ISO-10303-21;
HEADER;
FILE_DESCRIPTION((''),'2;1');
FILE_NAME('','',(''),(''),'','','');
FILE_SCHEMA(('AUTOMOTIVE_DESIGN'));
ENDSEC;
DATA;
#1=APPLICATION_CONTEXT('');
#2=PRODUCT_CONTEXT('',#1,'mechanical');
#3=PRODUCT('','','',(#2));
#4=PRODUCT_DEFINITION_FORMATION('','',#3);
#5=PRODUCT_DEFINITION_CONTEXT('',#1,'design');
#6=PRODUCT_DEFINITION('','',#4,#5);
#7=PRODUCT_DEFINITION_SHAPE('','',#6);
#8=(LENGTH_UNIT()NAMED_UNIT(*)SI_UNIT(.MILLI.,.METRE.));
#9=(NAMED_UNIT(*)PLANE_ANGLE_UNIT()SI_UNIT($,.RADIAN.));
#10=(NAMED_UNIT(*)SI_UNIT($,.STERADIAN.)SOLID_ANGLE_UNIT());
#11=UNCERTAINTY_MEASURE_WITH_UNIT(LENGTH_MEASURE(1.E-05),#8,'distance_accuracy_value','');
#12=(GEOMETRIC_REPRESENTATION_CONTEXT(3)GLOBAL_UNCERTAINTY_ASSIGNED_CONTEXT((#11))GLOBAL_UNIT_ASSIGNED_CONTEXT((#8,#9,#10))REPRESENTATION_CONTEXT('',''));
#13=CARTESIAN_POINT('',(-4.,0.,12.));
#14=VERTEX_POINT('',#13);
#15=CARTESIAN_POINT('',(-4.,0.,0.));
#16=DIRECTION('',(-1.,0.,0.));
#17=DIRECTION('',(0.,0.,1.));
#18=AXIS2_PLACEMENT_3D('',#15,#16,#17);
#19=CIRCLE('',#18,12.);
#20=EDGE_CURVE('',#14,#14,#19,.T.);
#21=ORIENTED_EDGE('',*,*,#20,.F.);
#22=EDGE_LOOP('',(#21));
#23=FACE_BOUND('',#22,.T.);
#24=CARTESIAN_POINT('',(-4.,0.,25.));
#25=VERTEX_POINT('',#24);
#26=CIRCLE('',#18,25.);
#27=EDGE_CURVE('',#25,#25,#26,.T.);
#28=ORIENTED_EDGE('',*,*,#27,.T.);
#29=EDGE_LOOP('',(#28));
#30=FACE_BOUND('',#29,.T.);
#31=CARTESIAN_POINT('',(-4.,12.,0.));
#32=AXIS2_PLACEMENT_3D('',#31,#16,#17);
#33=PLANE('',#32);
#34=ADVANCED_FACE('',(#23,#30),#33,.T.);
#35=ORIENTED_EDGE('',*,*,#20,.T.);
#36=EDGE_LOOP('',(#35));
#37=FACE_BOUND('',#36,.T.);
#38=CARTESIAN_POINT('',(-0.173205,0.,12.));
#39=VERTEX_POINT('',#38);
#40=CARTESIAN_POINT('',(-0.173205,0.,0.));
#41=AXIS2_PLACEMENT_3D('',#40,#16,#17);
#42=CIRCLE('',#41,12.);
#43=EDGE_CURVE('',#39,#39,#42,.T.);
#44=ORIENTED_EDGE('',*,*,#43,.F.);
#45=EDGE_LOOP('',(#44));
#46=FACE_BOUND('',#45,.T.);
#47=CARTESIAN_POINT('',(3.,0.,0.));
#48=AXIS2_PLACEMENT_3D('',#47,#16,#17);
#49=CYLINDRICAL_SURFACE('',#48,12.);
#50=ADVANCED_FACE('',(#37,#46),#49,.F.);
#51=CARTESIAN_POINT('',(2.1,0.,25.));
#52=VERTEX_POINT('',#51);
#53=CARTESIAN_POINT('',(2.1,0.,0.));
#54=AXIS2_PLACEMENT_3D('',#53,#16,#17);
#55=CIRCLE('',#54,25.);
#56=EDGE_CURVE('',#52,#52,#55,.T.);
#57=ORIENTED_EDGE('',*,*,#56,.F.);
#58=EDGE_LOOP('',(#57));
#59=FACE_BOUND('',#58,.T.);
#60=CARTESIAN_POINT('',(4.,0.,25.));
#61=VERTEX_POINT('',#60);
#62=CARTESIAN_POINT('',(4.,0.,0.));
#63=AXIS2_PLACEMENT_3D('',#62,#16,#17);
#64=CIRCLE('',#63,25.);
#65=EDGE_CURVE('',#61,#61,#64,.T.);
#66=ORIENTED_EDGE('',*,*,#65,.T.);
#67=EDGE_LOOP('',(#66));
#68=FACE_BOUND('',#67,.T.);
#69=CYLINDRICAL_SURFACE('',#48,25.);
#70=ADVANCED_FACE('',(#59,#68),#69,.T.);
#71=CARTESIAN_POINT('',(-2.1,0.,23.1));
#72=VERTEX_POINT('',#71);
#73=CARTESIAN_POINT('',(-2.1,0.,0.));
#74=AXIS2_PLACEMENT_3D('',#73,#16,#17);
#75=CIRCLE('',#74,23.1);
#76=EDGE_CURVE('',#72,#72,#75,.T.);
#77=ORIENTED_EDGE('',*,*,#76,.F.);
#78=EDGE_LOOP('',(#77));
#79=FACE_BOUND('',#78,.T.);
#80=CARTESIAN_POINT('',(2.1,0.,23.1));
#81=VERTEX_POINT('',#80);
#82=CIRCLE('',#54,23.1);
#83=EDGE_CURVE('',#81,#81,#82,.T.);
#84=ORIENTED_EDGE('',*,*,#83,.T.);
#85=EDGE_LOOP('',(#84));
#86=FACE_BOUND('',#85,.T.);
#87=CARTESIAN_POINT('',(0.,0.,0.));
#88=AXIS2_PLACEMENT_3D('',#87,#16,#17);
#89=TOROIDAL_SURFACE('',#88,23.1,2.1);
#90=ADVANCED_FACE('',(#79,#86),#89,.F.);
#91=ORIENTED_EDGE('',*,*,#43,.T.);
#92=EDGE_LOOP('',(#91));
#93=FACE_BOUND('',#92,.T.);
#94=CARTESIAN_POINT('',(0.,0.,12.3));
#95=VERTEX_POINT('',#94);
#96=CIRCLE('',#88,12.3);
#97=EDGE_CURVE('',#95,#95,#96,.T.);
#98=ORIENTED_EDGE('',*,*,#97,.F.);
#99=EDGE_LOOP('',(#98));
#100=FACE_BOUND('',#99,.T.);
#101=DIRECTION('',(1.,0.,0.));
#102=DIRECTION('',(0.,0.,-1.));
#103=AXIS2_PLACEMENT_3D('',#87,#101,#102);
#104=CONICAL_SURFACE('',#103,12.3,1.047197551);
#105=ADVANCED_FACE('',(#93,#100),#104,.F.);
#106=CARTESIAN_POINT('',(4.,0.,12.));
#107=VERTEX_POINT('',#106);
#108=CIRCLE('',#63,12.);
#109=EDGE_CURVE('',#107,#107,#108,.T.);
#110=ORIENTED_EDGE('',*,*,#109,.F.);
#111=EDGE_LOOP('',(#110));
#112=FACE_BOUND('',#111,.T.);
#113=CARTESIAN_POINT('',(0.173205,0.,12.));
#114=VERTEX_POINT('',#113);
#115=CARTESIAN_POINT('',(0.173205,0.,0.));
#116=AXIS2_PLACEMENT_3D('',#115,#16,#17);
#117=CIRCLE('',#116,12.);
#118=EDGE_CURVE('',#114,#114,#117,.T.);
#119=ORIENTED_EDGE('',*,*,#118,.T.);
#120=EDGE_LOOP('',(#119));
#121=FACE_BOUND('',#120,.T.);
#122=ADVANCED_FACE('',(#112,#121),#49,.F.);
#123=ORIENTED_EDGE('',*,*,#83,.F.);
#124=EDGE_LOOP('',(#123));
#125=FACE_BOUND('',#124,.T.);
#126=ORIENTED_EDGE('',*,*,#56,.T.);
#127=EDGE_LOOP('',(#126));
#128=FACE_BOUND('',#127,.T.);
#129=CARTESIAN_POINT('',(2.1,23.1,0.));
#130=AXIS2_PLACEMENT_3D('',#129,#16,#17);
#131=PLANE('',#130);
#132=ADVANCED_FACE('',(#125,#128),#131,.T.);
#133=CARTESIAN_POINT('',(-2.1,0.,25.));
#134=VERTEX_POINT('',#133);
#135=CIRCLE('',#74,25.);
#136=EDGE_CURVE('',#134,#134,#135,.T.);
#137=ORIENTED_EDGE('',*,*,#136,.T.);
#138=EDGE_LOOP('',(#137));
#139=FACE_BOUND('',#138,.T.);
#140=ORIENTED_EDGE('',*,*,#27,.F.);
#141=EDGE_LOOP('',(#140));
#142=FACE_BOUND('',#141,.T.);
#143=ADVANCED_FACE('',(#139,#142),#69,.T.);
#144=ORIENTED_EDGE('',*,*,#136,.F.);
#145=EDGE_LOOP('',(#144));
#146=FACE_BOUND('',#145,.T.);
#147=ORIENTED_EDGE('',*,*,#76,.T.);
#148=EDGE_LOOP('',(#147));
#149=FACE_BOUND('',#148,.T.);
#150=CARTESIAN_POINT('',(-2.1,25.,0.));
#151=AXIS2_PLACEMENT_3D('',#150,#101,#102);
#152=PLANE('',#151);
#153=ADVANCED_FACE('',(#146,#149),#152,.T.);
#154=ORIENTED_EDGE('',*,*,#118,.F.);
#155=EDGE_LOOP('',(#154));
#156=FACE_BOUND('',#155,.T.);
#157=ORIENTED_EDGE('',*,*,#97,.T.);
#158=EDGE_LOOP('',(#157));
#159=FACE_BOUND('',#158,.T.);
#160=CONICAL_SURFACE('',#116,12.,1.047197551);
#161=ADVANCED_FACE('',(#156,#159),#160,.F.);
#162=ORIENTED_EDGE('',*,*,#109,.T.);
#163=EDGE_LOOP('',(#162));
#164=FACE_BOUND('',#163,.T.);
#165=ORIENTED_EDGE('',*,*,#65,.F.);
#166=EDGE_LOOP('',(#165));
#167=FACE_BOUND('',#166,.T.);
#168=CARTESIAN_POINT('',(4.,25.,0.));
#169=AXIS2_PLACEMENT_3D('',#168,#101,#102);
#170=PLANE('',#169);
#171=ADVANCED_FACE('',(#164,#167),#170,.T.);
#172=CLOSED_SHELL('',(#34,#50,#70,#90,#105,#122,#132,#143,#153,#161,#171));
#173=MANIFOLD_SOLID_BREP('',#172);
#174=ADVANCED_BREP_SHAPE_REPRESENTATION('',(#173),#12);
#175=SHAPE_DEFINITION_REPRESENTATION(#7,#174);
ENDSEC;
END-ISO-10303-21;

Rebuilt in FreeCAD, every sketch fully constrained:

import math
import FreeCAD as App
import Part
import Sketcher
Q = App.Units.Quantity

doc = App.newDocument("Part")
params = doc.addObject("Spreadsheet::Sheet", "Params")
for row, (alias, value) in enumerate([
    ("sketch1_radius", "2.1 mm"),
    ("sketch1_height", "13 mm"),
    ("sketch1_width", "1.9 mm"),
    ("revolution_angle", "360 deg"),
], start=1):
    params.set(f"A{row}", alias)
    params.set(f"B{row}", "=" + value)
    params.setAlias(f"B{row}", alias)

body = doc.addObject("PartDesign::Body", "Body")

sketch1 = body.newObject("Sketcher::SketchObject", "Sketch")
sketch1.AttachmentSupport = (doc.getObject("XY_Plane"), [""])
sketch1.MapMode = "FlatFace"
sketch1.addGeometry([
    Part.LineSegment(App.Vector(-4, 25, 0), App.Vector(-2.1, 25, 0)),
    Part.LineSegment(App.Vector(-2.1, 25, 0), App.Vector(-2.1, 23.1, 0)),
    Part.ArcOfCircle(Part.Circle(App.Vector(0, 23.1, 0), App.Vector(0, 0, 1), 2.1), math.radians(180), math.radians(360)),
    Part.LineSegment(App.Vector(2.1, 23.1, 0), App.Vector(2.1, 25, 0)),
    Part.LineSegment(App.Vector(2.1, 25, 0), App.Vector(4, 25, 0)),
    Part.LineSegment(App.Vector(4, 25, 0), App.Vector(4, 12, 0)),
    Part.LineSegment(App.Vector(4, 12, 0), App.Vector(0.17, 12, 0)),
    Part.LineSegment(App.Vector(0.17, 12, 0), App.Vector(0, 12.3, 0)),
    Part.LineSegment(App.Vector(0, 12.3, 0), App.Vector(-0.17, 12, 0)),
    Part.LineSegment(App.Vector(-0.17, 12, 0), App.Vector(-4, 12, 0)),
    Part.LineSegment(App.Vector(-4, 12, 0), App.Vector(-4, 25, 0)),
], False)
sketch1.addConstraint([
    Sketcher.Constraint("Coincident", 0, 2, 1, 1),
    Sketcher.Constraint("Tangent", 1, 2, 2, 1),
    Sketcher.Constraint("Tangent", 2, 2, 3, 1),
    Sketcher.Constraint("Coincident", 3, 2, 4, 1),
    Sketcher.Constraint("Coincident", 4, 2, 5, 1),
    Sketcher.Constraint("Coincident", 5, 2, 6, 1),
    Sketcher.Constraint("Coincident", 6, 2, 7, 1),
    Sketcher.Constraint("Coincident", 7, 2, 8, 1),
    Sketcher.Constraint("Coincident", 8, 2, 9, 1),
    Sketcher.Constraint("Coincident", 9, 2, 10, 1),
    Sketcher.Constraint("Coincident", 10, 2, 0, 1),
    Sketcher.Constraint("Horizontal", 0),
    Sketcher.Constraint("Vertical", 1),
    Sketcher.Constraint("Vertical", 3),
    Sketcher.Constraint("Horizontal", 4),
    Sketcher.Constraint("Vertical", 5),
    Sketcher.Constraint("Horizontal", 6),
    Sketcher.Constraint("Horizontal", 9),
    Sketcher.Constraint("Vertical", 10),
    Sketcher.Constraint("Symmetric", 0, 2, 3, 2, -2),
    Sketcher.Constraint("Symmetric", 6, 2, 8, 2, -2),
    Sketcher.Constraint("PointOnObject", 7, 2, -2),
    Sketcher.Constraint("Equal", 0, 4),
    Sketcher.Constraint("Equal", 4, 1),
    Sketcher.Constraint("Radius", 2, Q("2.1 mm")),
    Sketcher.Constraint("DistanceY", 5, 2, 5, 1, Q("13 mm")),
    Sketcher.Constraint("Angle", 7, Q("120 deg")),
    Sketcher.Constraint("DistanceX", 0, 1, 0, 2, Q("1.9 mm")),
    Sketcher.Constraint("DistanceY", -1, 1, 0, 2, Q("25 mm")),
    Sketcher.Constraint("DistanceY", -1, 1, 7, 2, Q("12.3 mm")),
])
sketch1.setExpression("Constraints[24]", "Params.sketch1_radius")
sketch1.setExpression("Constraints[25]", "Params.sketch1_height")
sketch1.setExpression("Constraints[27]", "Params.sketch1_width")
revolution = body.newObject("PartDesign::Revolution", "Revolution")
revolution.Profile = sketch1
revolution.ReferenceAxis = (sketch1, ["H_Axis"])
revolution.setExpression("Angle", "Params.revolution_angle")

doc.recompute()
